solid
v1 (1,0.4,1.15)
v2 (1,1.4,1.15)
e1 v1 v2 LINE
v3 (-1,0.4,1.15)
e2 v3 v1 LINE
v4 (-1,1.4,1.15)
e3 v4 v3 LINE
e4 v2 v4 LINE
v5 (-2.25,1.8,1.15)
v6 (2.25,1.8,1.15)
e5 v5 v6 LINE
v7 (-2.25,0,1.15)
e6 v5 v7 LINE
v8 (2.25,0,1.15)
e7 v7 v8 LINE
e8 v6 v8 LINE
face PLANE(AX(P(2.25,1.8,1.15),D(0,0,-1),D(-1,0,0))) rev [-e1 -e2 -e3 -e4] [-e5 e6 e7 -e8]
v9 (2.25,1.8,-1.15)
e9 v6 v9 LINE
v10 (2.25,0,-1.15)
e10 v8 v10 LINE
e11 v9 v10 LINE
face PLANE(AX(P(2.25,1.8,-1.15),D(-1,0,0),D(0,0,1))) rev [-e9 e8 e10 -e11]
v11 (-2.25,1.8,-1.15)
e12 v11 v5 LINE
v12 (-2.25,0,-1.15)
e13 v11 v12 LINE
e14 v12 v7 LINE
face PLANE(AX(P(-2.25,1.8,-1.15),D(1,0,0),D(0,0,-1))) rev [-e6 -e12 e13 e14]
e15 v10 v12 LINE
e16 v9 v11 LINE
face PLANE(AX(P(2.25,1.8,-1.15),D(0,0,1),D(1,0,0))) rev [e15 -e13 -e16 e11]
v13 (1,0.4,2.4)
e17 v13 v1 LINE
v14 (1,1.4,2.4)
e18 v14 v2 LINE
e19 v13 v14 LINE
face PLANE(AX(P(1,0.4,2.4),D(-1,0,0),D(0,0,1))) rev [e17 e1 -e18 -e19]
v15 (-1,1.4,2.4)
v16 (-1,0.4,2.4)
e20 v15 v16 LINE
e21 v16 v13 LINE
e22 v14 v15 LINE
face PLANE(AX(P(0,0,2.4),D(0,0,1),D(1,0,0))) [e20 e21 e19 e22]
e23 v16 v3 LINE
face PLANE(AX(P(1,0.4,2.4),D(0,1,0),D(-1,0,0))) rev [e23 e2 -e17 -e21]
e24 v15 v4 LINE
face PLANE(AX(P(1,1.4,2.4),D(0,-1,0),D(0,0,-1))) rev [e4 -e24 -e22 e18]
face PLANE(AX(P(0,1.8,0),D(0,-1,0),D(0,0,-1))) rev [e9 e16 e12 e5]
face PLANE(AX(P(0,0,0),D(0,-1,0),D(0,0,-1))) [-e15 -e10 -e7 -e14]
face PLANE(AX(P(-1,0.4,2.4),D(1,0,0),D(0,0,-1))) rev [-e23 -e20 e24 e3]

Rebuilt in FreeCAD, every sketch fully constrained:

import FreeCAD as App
import Part
import Sketcher
from FreeCAD import Vector
Q = App.Units.Quantity


def add_polygon(sketch, points):
    """Adds a closed chain of lines whose ends are joined by coincident constraints."""
    first, n = sketch.GeometryCount, len(points)
    for a, b in zip(points, points[1:] + points[:1]):
        sketch.addGeometry(Part.LineSegment(App.Vector(*a, 0), App.Vector(*b, 0)), False)
    for i in range(n):
        sketch.addConstraint(Sketcher.Constraint("Coincident", first + i, 2, first + (i + 1) % n, 1))

doc = App.newDocument("Part")
body = doc.addObject("PartDesign::Body", "Body")

sketch1 = body.newObject("Sketcher::SketchObject", "Sketch")
sketch1.AttachmentSupport = (doc.getObject("XZ_Plane"), [""])
sketch1.MapMode = "FlatFace"
add_polygon(sketch1, [(-2.2, -1.1), (-2.2, 1.1), (2.2, 1.1), (2.2, -1.1)])
sketch1.addConstraint(Sketcher.Constraint("Vertical", 0))
sketch1.addConstraint(Sketcher.Constraint("Horizontal", 1))
sketch1.addConstraint(Sketcher.Constraint("Vertical", 2))
sketch1.addConstraint(Sketcher.Constraint("Horizontal", 3))
sketch1.addConstraint(Sketcher.Constraint("Symmetric", 0, 2, 2, 2, -1, 1))
sketch1.addConstraint(Sketcher.Constraint("DistanceX", 1, 1, 1, 2, Q("4.5 mm")))
sketch1.addConstraint(Sketcher.Constraint("DistanceY", 0, 1, 0, 2, Q("2.3 mm")))
pad1 = body.newObject("PartDesign::Pad", "Pad")
pad1.Profile = sketch1
pad1.Length = 1.8
pad1.Reversed = True

sketch2 = body.newObject("Sketcher::SketchObject", "Sketch001")
sketch2.AttachmentSupport = (doc.getObject("XY_Plane"), [""])
sketch2.MapMode = "FlatFace"
sketch2.AttachmentOffset = App.Placement(Vector(0, 0, 1.15), App.Rotation())
add_polygon(sketch2, [(-1, 1.4), (-1, 0.4), (1, 0.4), (1, 1.4)])
sketch2.addConstraint(Sketcher.Constraint("Vertical", 0))
sketch2.addConstraint(Sketcher.Constraint("Horizontal", 1))
sketch2.addConstraint(Sketcher.Constraint("Vertical", 2))
sketch2.addConstraint(Sketcher.Constraint("Horizontal", 3))
sketch2.addConstraint(Sketcher.Constraint("DistanceX", 1, 1, 1, 2, Q("2 mm")))
sketch2.addConstraint(Sketcher.Constraint("DistanceY", 0, 2, 0, 1, Q("1 mm")))
sketch2.addConstraint(Sketcher.Constraint("DistanceX", 0, 2, -1, 1, Q("1 mm")))
sketch2.addConstraint(Sketcher.Constraint("DistanceY", -1, 1, 0, 2, Q("0.4 mm")))
pad2 = body.newObject("PartDesign::Pad", "Pad001")
pad2.Profile = sketch2
pad2.Length = 1.25

doc.recompute()
